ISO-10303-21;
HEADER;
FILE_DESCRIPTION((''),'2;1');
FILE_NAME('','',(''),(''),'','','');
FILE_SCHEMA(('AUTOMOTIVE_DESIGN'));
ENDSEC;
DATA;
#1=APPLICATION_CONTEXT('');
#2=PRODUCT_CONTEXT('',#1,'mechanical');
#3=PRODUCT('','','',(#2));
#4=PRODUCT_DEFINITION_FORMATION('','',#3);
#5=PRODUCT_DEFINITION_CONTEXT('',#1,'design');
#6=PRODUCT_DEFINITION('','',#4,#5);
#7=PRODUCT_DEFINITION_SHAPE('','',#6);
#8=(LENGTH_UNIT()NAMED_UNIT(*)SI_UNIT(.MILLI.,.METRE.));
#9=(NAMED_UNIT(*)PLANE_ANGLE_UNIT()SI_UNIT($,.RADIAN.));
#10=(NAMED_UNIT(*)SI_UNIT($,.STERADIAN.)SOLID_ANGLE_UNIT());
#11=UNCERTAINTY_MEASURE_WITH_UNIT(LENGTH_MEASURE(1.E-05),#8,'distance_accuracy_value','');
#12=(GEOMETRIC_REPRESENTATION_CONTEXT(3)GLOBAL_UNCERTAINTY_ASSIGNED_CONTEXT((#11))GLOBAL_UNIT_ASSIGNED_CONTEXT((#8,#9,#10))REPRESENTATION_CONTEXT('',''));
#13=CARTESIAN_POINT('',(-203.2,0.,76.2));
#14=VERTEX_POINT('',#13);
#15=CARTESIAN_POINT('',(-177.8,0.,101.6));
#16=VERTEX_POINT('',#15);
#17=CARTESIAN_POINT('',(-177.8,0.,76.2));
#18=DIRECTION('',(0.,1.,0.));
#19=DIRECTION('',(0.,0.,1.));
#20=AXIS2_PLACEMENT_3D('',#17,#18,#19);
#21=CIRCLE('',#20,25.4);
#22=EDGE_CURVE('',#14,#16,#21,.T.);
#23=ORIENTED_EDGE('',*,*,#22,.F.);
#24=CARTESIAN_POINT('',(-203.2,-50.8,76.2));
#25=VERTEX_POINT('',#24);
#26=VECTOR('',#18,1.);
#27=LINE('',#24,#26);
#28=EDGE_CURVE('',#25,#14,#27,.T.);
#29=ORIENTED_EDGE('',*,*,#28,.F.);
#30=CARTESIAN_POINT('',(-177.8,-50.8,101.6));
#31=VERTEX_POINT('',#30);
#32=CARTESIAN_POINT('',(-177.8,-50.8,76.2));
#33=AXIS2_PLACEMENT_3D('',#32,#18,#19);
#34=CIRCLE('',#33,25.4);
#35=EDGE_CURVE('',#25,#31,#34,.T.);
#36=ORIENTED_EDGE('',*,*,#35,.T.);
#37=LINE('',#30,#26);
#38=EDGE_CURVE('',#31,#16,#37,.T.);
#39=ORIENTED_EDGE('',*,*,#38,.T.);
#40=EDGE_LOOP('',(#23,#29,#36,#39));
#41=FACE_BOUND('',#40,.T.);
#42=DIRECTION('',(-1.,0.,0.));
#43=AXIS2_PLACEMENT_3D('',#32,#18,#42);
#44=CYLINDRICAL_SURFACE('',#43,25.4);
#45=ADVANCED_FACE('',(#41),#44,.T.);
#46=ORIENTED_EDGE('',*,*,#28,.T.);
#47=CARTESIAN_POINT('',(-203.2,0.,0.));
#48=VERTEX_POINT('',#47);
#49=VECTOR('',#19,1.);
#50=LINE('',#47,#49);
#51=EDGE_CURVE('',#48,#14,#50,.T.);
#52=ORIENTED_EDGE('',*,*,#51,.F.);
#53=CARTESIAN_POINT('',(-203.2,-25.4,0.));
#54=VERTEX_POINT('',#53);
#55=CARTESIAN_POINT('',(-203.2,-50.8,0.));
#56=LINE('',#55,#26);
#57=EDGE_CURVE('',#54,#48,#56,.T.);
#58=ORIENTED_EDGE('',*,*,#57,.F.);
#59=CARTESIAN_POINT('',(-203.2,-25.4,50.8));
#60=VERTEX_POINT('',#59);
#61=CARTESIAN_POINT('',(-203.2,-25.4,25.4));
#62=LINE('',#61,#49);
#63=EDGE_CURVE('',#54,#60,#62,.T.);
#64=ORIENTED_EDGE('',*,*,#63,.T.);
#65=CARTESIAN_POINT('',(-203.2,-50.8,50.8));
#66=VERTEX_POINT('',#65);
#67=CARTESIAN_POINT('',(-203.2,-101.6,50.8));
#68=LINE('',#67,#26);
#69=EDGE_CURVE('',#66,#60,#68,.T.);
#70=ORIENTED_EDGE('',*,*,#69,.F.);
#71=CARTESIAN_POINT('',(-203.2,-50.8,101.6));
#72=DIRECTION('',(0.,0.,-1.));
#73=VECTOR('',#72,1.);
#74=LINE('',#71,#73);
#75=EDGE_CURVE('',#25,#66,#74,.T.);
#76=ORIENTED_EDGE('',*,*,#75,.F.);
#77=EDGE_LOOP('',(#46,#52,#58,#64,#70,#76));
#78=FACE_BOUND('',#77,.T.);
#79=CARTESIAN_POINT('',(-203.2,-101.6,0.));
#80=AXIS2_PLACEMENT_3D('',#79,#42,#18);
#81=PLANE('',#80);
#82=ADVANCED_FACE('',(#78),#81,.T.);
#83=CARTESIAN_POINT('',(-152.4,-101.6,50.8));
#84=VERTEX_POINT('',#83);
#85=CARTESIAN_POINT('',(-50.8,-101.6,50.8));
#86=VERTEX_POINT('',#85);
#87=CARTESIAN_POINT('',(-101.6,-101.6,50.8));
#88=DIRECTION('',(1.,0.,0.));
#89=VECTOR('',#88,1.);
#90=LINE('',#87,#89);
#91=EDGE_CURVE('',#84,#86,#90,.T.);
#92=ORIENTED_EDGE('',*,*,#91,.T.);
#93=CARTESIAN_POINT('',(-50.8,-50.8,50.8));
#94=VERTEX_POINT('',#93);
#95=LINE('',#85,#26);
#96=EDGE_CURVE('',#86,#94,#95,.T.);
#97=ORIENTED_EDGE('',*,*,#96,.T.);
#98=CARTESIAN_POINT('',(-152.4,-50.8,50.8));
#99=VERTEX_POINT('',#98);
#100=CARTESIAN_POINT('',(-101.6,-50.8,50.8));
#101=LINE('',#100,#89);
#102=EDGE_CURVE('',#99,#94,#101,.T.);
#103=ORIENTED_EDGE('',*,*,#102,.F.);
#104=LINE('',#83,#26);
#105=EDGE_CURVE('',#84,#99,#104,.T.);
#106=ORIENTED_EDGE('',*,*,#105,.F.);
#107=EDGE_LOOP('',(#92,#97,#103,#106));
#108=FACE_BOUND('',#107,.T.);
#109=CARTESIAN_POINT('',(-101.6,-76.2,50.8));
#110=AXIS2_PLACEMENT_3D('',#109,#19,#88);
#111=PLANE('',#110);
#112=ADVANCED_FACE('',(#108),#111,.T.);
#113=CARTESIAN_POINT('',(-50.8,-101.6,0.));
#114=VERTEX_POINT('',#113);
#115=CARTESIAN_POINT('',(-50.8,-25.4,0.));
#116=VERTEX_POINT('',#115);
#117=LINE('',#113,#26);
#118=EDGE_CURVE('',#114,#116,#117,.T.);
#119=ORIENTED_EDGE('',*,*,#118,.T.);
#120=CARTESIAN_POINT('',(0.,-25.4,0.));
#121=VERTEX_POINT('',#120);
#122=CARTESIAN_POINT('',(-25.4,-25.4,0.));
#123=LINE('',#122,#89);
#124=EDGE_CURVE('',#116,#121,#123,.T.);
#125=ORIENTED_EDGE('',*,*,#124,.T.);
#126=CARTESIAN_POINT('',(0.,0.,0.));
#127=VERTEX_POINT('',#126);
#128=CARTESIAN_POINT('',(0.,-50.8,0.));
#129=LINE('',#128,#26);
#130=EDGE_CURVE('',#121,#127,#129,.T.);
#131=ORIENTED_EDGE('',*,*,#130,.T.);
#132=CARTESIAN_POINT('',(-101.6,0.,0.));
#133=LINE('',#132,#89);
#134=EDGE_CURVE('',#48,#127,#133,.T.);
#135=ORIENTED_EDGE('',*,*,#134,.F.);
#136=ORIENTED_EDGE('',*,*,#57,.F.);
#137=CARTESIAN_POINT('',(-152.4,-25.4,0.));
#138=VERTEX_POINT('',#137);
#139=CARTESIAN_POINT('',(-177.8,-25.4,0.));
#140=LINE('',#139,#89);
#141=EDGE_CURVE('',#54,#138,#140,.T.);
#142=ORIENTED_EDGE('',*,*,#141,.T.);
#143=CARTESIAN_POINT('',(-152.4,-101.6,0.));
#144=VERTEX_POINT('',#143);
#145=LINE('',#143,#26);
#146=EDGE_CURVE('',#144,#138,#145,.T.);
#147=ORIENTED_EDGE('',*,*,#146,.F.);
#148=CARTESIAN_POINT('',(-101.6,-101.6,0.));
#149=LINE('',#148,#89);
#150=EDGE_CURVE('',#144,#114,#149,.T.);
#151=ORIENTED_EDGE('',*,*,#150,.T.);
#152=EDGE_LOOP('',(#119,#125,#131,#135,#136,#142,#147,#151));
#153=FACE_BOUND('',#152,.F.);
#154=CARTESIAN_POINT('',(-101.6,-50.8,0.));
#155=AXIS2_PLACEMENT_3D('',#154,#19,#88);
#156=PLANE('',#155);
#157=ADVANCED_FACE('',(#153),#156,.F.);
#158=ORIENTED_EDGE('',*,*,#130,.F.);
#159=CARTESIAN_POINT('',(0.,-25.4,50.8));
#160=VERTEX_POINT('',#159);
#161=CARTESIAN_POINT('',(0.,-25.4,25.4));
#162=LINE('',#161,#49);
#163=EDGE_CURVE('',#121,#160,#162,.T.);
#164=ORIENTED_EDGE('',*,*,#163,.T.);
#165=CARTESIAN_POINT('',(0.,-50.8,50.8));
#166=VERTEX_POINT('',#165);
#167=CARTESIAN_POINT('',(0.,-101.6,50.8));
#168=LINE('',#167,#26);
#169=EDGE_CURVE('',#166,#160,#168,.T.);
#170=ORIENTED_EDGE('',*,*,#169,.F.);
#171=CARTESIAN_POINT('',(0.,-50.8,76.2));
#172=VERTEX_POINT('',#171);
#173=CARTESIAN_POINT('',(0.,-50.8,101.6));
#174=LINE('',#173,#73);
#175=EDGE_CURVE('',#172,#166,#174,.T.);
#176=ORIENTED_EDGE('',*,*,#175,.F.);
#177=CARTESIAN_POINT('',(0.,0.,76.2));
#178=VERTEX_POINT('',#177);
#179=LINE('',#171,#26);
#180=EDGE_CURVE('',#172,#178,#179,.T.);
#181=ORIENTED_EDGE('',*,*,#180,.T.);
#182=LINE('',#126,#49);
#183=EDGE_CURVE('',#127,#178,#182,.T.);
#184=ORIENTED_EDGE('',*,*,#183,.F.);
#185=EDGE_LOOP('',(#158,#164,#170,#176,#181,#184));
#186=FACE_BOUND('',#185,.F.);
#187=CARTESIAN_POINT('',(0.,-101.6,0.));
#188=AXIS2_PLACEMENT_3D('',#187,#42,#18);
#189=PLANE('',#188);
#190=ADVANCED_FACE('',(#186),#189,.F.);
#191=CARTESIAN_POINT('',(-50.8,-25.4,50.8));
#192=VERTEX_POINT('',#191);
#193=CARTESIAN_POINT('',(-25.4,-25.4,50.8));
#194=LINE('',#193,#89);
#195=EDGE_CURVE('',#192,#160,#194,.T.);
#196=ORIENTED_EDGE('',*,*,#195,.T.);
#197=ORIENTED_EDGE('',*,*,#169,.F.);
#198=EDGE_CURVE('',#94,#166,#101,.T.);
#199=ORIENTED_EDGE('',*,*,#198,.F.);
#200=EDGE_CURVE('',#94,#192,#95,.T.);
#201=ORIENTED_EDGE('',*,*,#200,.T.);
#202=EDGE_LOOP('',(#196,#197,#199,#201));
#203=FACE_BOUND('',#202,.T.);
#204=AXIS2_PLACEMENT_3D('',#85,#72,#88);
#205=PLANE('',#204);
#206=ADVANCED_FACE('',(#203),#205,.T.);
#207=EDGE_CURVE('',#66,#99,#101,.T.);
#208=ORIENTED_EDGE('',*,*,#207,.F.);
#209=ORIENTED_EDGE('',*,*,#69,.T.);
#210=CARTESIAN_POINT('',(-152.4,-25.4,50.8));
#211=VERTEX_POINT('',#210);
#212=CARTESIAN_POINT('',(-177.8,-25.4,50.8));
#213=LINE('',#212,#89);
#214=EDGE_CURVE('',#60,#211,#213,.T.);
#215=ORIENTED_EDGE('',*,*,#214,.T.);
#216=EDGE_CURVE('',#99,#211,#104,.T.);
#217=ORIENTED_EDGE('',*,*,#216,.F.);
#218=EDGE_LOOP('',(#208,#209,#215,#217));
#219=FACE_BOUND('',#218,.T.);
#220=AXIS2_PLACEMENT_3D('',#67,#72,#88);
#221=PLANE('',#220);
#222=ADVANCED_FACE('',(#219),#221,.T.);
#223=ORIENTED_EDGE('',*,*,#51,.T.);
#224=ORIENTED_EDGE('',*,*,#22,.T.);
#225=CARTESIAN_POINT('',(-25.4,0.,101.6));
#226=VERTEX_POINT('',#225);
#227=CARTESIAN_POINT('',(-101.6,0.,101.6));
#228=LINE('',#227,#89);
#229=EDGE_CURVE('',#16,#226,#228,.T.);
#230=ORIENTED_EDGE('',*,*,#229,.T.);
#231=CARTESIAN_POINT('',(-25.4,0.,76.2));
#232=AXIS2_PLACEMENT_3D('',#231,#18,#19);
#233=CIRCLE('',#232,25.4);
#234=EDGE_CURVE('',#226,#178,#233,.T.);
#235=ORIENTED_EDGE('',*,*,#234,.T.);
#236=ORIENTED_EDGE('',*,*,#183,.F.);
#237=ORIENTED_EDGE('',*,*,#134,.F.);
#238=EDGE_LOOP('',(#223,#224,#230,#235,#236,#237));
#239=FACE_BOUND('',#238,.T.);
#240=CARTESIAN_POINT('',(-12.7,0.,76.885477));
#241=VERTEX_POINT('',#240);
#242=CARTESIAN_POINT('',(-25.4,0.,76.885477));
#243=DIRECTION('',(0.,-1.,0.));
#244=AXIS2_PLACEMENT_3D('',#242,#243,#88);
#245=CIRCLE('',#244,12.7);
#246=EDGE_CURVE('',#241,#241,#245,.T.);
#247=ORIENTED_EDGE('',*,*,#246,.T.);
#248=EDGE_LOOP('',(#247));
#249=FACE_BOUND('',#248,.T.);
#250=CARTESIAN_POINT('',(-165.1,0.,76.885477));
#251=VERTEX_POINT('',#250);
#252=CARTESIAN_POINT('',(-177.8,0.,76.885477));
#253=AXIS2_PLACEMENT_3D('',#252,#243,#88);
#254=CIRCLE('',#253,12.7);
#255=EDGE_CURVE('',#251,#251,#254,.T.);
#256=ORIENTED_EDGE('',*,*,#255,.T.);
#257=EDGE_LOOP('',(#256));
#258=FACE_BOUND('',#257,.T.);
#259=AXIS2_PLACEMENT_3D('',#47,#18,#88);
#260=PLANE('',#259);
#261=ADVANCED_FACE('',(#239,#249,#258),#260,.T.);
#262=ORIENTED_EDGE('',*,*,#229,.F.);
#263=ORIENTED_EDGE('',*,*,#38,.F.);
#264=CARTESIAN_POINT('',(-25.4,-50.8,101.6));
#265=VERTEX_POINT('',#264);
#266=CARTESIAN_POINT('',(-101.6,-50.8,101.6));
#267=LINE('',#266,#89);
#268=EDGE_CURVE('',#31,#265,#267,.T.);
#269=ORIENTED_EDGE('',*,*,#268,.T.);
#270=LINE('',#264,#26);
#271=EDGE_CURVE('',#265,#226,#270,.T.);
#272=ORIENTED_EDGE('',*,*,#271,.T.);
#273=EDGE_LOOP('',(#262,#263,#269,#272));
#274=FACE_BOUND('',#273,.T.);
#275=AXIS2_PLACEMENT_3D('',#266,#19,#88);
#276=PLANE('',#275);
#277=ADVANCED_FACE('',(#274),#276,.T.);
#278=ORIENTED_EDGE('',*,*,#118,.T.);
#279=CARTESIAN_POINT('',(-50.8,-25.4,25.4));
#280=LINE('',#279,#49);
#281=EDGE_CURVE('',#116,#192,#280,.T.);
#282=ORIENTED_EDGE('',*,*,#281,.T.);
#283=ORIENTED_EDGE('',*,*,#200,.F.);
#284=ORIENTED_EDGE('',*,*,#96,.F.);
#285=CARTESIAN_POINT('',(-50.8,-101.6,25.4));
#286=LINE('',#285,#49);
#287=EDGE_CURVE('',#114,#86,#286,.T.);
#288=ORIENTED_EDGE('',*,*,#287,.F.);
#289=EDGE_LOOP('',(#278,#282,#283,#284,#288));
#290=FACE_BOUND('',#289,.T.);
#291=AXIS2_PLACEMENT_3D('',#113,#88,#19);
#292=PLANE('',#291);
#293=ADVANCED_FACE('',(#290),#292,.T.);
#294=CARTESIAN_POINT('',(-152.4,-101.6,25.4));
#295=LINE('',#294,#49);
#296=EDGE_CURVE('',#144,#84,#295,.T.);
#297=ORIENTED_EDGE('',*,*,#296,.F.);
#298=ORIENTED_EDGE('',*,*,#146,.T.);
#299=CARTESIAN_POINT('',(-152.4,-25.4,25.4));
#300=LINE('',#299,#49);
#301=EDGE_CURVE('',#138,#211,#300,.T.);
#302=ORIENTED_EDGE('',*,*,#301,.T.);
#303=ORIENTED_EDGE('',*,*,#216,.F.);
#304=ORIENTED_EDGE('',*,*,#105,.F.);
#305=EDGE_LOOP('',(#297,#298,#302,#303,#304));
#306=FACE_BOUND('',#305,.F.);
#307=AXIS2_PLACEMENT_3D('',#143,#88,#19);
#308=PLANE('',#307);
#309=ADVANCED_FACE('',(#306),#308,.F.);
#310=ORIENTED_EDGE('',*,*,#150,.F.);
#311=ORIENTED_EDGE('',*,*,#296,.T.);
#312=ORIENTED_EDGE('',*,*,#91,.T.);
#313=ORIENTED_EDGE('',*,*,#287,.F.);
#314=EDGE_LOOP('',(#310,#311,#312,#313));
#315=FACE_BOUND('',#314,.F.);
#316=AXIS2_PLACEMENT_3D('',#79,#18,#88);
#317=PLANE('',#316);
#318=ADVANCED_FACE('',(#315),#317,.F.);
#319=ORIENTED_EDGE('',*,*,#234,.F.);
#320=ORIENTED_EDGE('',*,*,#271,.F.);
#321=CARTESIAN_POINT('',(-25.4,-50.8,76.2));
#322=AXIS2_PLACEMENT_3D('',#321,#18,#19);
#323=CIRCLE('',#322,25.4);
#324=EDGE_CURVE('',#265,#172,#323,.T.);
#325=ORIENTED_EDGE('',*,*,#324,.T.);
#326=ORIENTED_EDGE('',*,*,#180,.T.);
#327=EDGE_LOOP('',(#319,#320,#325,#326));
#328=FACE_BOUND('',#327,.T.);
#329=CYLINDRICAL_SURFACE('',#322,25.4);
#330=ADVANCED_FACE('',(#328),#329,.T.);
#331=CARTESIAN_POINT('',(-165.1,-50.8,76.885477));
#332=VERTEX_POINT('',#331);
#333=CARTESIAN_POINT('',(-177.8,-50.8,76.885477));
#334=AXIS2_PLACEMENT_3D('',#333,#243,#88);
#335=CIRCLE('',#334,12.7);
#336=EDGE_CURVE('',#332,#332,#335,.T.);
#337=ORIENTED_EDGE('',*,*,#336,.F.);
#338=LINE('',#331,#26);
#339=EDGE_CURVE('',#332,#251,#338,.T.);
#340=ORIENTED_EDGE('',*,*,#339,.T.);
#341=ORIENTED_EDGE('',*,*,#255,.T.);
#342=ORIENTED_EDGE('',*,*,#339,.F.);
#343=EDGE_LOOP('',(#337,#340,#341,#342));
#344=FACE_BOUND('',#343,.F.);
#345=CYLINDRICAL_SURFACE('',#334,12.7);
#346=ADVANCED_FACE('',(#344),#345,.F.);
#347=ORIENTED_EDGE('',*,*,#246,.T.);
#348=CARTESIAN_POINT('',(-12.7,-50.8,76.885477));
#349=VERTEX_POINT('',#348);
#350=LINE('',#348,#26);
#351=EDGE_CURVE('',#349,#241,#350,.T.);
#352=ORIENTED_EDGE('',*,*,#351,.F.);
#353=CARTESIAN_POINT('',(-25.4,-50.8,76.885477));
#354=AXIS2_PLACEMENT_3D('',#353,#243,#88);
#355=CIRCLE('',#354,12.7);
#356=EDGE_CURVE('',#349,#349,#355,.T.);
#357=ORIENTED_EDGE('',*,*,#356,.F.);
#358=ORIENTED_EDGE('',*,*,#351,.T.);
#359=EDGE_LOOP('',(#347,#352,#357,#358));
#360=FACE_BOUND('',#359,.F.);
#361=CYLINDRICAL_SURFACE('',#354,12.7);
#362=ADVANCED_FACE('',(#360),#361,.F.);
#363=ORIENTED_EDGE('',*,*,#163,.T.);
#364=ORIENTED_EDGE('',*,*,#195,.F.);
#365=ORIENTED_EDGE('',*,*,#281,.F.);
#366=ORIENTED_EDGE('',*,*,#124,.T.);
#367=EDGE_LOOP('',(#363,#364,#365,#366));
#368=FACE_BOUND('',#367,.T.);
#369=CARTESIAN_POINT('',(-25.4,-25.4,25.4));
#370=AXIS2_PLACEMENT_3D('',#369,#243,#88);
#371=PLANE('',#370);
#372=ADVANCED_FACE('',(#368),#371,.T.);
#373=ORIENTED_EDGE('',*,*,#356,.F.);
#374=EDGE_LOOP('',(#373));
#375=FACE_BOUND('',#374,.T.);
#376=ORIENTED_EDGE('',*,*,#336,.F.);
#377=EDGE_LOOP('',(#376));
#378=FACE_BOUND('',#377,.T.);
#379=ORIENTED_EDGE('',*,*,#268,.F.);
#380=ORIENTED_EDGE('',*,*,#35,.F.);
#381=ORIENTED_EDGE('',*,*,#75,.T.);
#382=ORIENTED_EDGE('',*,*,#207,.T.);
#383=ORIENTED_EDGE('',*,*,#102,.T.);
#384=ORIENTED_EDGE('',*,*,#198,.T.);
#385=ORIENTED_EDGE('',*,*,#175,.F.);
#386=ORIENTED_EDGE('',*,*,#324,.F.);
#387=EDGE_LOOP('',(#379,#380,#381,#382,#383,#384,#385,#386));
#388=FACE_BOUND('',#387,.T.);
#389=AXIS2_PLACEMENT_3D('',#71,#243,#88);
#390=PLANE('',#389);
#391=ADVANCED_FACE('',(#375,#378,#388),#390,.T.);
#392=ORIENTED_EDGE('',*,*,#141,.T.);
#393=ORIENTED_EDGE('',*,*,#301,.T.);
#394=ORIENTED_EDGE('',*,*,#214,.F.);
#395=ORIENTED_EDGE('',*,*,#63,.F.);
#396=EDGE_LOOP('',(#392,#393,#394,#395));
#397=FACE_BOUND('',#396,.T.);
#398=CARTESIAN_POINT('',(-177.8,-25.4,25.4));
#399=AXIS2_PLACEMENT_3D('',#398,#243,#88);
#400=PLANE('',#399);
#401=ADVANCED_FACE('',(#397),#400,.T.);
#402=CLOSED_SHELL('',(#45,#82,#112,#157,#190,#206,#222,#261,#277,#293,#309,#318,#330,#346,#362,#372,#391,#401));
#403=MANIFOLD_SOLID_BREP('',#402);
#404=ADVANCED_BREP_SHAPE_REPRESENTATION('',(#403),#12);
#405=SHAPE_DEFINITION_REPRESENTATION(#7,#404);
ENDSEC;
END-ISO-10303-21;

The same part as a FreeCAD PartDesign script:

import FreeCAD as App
import Part
import Sketcher
from FreeCAD import Vector
Q = App.Units.Quantity


def edges_at(feature, points):
    """Names of the edges that pass closest to the given points."""
    edges = feature.Shape.Edges
    near = lambda p: min(range(len(edges)), key=lambda i: edges[i].distToShape(Part.Vertex(*p))[0])
    return sorted({f"Edge{near(p) + 1}" for p in points})


def add_polygon(sketch, points):
    """Adds a closed chain of lines whose ends are joined by coincident constraints."""
    first, n = sketch.GeometryCount, len(points)
    for a, b in zip(points, points[1:] + points[:1]):
        sketch.addGeometry(Part.LineSegment(App.Vector(*a, 0), App.Vector(*b, 0)), False)
    for i in range(n):
        sketch.addConstraint(Sketcher.Constraint("Coincident", first + i, 2, first + (i + 1) % n, 1))

doc = App.newDocument("Part")
body = doc.addObject("PartDesign::Body", "Body")

sketch1 = body.newObject("Sketcher::SketchObject", "Sketch")
sketch1.AttachmentSupport = (doc.getObject("XY_Plane"), [""])
sketch1.MapMode = "FlatFace"
add_polygon(sketch1, [(-203, 0), (-203, -102), (0, -102), (0, 0)])
sketch1.addConstraint([
    Sketcher.Constraint("Vertical", 0),
    Sketcher.Constraint("Horizontal", 1),
    Sketcher.Constraint("Vertical", 2),
    Sketcher.Constraint("Horizontal", 3),
    Sketcher.Constraint("Coincident", 2, 2, -1, 1),
    Sketcher.Constraint("DistanceX", 1, 1, 1, 2, Q("8 in")),
    Sketcher.Constraint("DistanceY", 0, 2, 0, 1, Q("4 in")),
])
pad1 = body.newObject("PartDesign::Pad", "Pad")
pad1.Profile = sketch1
pad1.Length = Q("4 in")

sketch2 = body.newObject("Sketcher::SketchObject", "Sketch001")
sketch2.AttachmentSupport = (doc.getObject("XY_Plane"), [""])
sketch2.MapMode = "FlatFace"
sketch2.AttachmentOffset = App.Placement(Vector(0, 0, 4 * 25.4), App.Rotation())
add_polygon(sketch2, [(-203, -51), (-203, -102), (0, -102), (0, -51)])
sketch2.addConstraint([
    Sketcher.Constraint("Vertical", 0),
    Sketcher.Constraint("Horizontal", 1),
    Sketcher.Constraint("Vertical", 2),
    Sketcher.Constraint("Horizontal", 3),
    Sketcher.Constraint("PointOnObject", 1, 2, -2),
    Sketcher.Constraint("DistanceX", 1, 1, 1, 2, Q("8 in")),
    Sketcher.Constraint("DistanceY", 0, 2, 0, 1, Q("2 in")),
    Sketcher.Constraint("DistanceY", 0, 2, -1, 1, Q("4 in")),
])
pocket1 = body.newObject("PartDesign::Pocket", "Pocket")
pocket1.Profile = sketch2
pocket1.Length = Q("2 in")

sketch3 = body.newObject("Sketcher::SketchObject", "Sketch002")
sketch3.AttachmentSupport = (doc.getObject("XZ_Plane"), [""])
sketch3.MapMode = "FlatFace"
sketch3.AttachmentOffset = App.Placement(Vector(0, 0, 4 * 25.4), App.Rotation())
add_polygon(sketch3, [(-203, 51), (-203, 0), (-152, 0), (-152, 51)])
sketch3.addConstraint([
    Sketcher.Constraint("Vertical", 0),
    Sketcher.Constraint("Horizontal", 1),
    Sketcher.Constraint("Vertical", 2),
    Sketcher.Constraint("Horizontal", 3),
    Sketcher.Constraint("PointOnObject", 0, 2, -1),
    Sketcher.Constraint("Equal", 3, 0),
    Sketcher.Constraint("DistanceX", 1, 1, 1, 2, Q("2 in")),
    Sketcher.Constraint("DistanceX", 0, 2, -1, 1, Q("8 in")),
])
pocket2 = body.newObject("PartDesign::Pocket", "Pocket001")
pocket2.Profile = sketch3
pocket2.Length = Q("3 in")

sketch4 = body.newObject("Sketcher::SketchObject", "Sketch003")
sketch4.AttachmentSupport = (doc.getObject("XZ_Plane"), [""])
sketch4.MapMode = "FlatFace"
sketch4.AttachmentOffset = App.Placement(Vector(0, 0, 4 * 25.4), App.Rotation())
add_polygon(sketch4, [(-51, 51), (-51, 0), (0, 0), (0, 51)])
sketch4.addConstraint([
    Sketcher.Constraint("Vertical", 0),
    Sketcher.Constraint("Horizontal", 1),
    Sketcher.Constraint("Vertical", 2),
    Sketcher.Constraint("Horizontal", 3),
    Sketcher.Constraint("Coincident", 1, 2, -1, 1),
    Sketcher.Constraint("Equal", 3, 0),
    Sketcher.Constraint("DistanceX", 1, 1, 1, 2, Q("2 in")),
])
pocket3 = body.newObject("PartDesign::Pocket", "Pocket002")
pocket3.Profile = sketch4
pocket3.Length = Q("3 in")

sketch5 = body.newObject("Sketcher::SketchObject", "Sketch004")
sketch5.AttachmentSupport = (doc.getObject("XZ_Plane"), [""])
sketch5.MapMode = "FlatFace"
sketch5.AttachmentOffset = App.Placement(Vector(0, 0, 2 * 25.4), App.Rotation())
sketch5.addGeometry([
    Part.Circle(Vector(-178, 77, 0), Vector(0, 0, 1), 13),
    Part.Circle(Vector(-25, 77, 0), Vector(0, 0, 1), 13),
], False)
sketch5.addConstraint([
    Sketcher.Constraint("Equal", 0, 1),
    Sketcher.Constraint("Horizontal", 0, 3, 1, 3),
    Sketcher.Constraint("Diameter", 0, Q("1 in")),
    Sketcher.Constraint("DistanceX", 0, 3, -1, 1, Q("7 in")),
    Sketcher.Constraint("DistanceX", 1, 3, -1, 1, Q("1 in")),
    Sketcher.Constraint("DistanceY", -1, 1, 0, 3, Q("76.885477 mm")),
])
pocket4 = body.newObject("PartDesign::Pocket", "Pocket003")
pocket4.Profile = sketch5
pocket4.Length = Q("2 in")
doc.recompute()

fillet = body.newObject("PartDesign::Fillet", "Fillet")
fillet.Base = (pocket4, edges_at(pocket4, [(-203.2, -25.4, 101.6), (0, -25.4, 101.6)]))
fillet.Radius = Q("1 in")

doc.recompute()
